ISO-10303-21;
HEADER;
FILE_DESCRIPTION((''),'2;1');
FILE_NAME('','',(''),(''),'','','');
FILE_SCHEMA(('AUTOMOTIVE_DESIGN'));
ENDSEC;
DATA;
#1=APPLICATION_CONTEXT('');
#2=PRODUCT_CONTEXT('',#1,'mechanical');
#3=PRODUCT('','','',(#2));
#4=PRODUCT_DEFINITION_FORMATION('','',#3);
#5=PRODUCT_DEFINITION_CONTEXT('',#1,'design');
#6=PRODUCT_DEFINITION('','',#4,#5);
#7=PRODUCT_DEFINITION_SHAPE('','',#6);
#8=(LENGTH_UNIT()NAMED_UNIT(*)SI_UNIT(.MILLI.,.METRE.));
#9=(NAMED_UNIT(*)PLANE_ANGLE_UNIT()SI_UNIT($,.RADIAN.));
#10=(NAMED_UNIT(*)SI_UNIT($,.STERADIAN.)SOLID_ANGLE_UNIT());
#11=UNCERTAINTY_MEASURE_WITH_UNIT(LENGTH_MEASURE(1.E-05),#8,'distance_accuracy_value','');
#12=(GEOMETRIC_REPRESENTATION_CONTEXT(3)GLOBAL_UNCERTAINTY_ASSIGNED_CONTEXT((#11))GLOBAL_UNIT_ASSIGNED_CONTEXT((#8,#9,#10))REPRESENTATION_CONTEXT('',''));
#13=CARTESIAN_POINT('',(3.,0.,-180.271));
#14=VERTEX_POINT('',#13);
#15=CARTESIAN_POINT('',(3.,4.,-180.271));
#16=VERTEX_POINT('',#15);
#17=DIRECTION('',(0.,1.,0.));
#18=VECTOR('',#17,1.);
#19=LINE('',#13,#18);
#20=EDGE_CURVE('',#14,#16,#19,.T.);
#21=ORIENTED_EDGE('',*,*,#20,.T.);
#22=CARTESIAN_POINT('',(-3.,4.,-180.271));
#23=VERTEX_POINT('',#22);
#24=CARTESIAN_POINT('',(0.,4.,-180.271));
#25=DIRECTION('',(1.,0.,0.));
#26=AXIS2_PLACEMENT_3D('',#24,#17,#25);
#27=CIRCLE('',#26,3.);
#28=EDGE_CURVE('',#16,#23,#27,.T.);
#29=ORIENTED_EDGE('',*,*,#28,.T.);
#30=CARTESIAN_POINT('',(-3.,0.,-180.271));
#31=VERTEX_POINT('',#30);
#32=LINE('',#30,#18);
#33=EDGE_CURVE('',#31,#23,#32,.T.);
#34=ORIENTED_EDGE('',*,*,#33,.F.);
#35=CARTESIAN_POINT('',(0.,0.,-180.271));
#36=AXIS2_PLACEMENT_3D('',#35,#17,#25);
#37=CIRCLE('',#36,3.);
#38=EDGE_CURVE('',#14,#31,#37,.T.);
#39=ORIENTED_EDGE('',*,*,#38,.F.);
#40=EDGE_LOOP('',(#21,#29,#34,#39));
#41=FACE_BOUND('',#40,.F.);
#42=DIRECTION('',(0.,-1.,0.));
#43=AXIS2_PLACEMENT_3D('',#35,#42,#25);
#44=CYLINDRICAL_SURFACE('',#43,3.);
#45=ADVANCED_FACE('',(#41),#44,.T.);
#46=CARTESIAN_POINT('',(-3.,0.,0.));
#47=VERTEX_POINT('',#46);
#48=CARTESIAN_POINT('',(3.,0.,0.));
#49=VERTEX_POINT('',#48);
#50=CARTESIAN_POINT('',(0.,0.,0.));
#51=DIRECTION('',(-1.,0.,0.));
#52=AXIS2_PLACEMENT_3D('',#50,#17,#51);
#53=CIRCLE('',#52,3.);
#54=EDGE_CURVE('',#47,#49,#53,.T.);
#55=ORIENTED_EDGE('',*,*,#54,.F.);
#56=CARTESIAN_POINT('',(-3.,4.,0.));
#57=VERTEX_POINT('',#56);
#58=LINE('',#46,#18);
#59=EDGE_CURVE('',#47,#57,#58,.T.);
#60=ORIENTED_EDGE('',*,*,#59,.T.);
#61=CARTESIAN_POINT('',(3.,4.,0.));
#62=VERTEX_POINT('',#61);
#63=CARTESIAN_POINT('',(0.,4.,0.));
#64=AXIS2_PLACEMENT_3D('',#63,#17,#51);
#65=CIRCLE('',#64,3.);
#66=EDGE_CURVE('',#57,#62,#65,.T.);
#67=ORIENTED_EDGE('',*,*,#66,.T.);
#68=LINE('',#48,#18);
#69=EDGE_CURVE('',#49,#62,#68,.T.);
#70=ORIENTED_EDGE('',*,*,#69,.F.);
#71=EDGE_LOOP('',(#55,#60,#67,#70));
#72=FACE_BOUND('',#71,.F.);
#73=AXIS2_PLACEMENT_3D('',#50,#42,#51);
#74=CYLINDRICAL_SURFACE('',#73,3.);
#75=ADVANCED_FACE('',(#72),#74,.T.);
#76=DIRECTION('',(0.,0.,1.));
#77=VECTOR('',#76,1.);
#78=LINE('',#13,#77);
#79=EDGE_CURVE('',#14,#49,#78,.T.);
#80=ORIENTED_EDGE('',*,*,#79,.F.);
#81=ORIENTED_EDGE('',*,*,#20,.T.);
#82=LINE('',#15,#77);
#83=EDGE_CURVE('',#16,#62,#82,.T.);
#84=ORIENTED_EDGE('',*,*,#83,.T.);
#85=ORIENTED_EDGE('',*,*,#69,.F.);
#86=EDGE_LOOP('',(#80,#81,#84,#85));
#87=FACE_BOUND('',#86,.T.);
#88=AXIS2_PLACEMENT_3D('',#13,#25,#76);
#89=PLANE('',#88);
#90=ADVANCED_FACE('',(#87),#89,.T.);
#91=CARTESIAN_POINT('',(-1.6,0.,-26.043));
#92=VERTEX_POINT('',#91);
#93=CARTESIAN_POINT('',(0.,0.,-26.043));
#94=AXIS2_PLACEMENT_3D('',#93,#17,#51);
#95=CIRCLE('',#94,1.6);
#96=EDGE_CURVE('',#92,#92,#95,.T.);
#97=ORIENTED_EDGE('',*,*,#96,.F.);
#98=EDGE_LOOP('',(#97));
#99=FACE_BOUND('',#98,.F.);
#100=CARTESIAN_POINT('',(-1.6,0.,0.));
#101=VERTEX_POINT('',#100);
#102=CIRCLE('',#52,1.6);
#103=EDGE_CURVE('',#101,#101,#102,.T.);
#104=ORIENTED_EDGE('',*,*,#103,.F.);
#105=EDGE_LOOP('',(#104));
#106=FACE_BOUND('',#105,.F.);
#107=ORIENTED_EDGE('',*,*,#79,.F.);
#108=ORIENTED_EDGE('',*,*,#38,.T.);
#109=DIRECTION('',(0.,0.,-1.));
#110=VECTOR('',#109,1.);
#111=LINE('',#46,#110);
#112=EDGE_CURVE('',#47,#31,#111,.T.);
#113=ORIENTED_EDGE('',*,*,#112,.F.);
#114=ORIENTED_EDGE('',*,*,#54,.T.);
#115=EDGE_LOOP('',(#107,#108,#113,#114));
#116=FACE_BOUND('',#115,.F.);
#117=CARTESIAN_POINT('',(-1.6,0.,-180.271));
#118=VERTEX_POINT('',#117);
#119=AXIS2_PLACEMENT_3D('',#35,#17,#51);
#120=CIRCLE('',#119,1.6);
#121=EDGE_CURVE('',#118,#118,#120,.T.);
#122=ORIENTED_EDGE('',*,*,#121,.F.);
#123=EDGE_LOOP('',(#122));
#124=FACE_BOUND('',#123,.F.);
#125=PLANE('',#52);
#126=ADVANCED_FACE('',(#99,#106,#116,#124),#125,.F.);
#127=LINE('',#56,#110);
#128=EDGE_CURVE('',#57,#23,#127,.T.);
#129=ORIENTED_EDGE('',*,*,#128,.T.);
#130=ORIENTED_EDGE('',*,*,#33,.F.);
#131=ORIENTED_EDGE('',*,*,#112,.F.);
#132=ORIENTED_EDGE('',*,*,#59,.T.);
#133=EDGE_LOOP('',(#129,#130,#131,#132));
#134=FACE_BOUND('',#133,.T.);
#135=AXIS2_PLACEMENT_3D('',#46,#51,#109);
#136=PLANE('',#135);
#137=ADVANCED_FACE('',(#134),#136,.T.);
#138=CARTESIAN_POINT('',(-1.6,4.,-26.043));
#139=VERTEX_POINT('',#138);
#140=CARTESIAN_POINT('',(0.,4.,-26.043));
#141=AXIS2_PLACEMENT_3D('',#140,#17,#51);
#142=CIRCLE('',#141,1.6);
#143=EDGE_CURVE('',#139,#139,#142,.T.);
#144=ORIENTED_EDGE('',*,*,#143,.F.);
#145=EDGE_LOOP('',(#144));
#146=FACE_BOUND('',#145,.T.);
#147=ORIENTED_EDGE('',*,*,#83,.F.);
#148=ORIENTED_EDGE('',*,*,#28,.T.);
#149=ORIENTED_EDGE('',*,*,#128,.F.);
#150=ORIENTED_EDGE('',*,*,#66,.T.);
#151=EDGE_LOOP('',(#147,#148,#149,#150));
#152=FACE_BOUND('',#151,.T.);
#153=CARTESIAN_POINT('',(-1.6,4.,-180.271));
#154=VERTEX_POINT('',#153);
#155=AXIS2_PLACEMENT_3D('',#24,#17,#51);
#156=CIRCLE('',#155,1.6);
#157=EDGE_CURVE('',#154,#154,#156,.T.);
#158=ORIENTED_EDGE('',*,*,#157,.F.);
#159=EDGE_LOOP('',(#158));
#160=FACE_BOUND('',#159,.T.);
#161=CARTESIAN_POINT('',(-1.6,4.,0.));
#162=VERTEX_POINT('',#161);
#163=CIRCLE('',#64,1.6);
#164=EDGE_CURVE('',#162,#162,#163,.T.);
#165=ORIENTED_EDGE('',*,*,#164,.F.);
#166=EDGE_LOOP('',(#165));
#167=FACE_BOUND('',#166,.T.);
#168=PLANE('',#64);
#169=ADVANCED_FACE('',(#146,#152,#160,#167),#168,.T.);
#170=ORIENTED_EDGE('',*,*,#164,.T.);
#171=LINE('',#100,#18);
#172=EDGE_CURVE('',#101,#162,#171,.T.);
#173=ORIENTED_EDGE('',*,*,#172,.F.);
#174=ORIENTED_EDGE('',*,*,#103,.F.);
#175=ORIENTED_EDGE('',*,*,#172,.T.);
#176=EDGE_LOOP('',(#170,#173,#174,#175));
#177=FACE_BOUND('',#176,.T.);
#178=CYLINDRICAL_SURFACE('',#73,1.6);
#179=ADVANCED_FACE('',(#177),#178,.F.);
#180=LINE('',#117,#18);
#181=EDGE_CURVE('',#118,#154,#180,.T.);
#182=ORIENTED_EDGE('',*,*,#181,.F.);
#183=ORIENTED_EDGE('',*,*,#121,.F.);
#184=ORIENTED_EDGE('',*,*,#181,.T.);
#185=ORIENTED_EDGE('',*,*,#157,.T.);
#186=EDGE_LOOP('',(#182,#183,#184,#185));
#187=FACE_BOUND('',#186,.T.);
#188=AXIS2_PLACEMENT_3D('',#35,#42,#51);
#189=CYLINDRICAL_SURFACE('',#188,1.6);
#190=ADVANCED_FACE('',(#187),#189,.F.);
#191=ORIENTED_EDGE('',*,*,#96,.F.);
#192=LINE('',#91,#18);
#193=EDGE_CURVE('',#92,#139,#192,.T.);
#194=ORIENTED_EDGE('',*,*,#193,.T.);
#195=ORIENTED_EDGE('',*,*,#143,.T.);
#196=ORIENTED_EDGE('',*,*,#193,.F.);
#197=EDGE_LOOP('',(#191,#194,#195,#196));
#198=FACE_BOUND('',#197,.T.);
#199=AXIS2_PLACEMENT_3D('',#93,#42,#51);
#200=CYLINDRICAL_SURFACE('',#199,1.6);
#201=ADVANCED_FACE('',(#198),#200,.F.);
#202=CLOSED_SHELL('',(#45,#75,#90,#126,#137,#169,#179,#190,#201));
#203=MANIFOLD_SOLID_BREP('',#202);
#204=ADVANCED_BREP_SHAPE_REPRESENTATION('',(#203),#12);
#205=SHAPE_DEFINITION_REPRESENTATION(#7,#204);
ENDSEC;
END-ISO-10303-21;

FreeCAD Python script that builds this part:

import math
import FreeCAD as App
import Part
import Sketcher
from FreeCAD import Vector

doc = App.newDocument("Part")
params = doc.addObject("Spreadsheet::Sheet", "Params")
for row, (alias, value) in enumerate([
    ("sketch1_radius", "3 mm"),
    ("sketch1_diameter", "3.2 mm"),
    ("pad1_length", "4 mm"),
], start=1):
    params.set(f"A{row}", alias)
    params.set(f"B{row}", "=" + value)
    params.setAlias(f"B{row}", alias)

body = doc.addObject("PartDesign::Body", "Body")

sketch1 = body.newObject("Sketcher::SketchObject", "Sketch")
sketch1.AttachmentSupport = (doc.getObject("XZ_Plane"), [""])
sketch1.MapMode = "FlatFace"
sketch1.addGeometry(Part.LineSegment(Vector(-3, -180.271, 0), Vector(-3, 0, 0)), False)
sketch1.addGeometry(Part.ArcOfCircle(Part.Circle(Vector(0, 0, 0), Vector(0, 0, 1), 3), math.radians(0), math.radians(180)), False)
sketch1.addGeometry(Part.LineSegment(Vector(3, 0, 0), Vector(3, -180.271, 0)), False)
sketch1.addGeometry(Part.ArcOfCircle(Part.Circle(Vector(0, -180.271, 0), Vector(0, 0, 1), 3), math.radians(180), math.radians(360)), False)
sketch1.addGeometry(Part.Circle(Vector(0, -180.271, 0), Vector(0, 0, 1), 1.6), False)
sketch1.addGeometry(Part.Circle(Vector(0, -26.043, 0), Vector(0, 0, 1), 1.6), False)
sketch1.addGeometry(Part.Circle(Vector(0, 0, 0), Vector(0, 0, 1), 1.6), False)
sketch1.addConstraint(Sketcher.Constraint("Tangent", 0, 2, 1, 2))
sketch1.addConstraint(Sketcher.Constraint("Tangent", 1, 1, 2, 1))
sketch1.addConstraint(Sketcher.Constraint("Tangent", 2, 2, 3, 2))
sketch1.addConstraint(Sketcher.Constraint("Tangent", 3, 1, 0, 1))
sketch1.addConstraint(Sketcher.Constraint("Vertical", 0))
sketch1.addConstraint(Sketcher.Constraint("Vertical", 2))
sketch1.addConstraint(Sketcher.Constraint("Coincident", 1, 3, -1, 1))
sketch1.addConstraint(Sketcher.Constraint("Coincident", 6, 3, -1, 1))
sketch1.addConstraint(Sketcher.Constraint("Coincident", 4, 3, 3, 3))
sketch1.addConstraint(Sketcher.Constraint("Equal", 4, 5))
sketch1.addConstraint(Sketcher.Constraint("Equal", 5, 6))
sketch1.addConstraint(Sketcher.Constraint("PointOnObject", 5, 3, -2))
sketch1.addConstraint(Sketcher.Constraint("Radius", 1, 3.0))
sketch1.addConstraint(Sketcher.Constraint("Diameter", 4, 3.2))
sketch1.addConstraint(Sketcher.Constraint("DistanceY", 0, 1, 0, 2, 180.271))
sketch1.addConstraint(Sketcher.Constraint("DistanceY", 5, 3, -1, 1, 26.043))
sketch1.setExpression("Constraints[12]", "Params.sketch1_radius")
sketch1.setExpression("Constraints[13]", "Params.sketch1_diameter")
pad1 = body.newObject("PartDesign::Pad", "Pad")
pad1.Profile = sketch1
pad1.setExpression("Length", "Params.pad1_length")
pad1.Reversed = True

doc.recompute()
